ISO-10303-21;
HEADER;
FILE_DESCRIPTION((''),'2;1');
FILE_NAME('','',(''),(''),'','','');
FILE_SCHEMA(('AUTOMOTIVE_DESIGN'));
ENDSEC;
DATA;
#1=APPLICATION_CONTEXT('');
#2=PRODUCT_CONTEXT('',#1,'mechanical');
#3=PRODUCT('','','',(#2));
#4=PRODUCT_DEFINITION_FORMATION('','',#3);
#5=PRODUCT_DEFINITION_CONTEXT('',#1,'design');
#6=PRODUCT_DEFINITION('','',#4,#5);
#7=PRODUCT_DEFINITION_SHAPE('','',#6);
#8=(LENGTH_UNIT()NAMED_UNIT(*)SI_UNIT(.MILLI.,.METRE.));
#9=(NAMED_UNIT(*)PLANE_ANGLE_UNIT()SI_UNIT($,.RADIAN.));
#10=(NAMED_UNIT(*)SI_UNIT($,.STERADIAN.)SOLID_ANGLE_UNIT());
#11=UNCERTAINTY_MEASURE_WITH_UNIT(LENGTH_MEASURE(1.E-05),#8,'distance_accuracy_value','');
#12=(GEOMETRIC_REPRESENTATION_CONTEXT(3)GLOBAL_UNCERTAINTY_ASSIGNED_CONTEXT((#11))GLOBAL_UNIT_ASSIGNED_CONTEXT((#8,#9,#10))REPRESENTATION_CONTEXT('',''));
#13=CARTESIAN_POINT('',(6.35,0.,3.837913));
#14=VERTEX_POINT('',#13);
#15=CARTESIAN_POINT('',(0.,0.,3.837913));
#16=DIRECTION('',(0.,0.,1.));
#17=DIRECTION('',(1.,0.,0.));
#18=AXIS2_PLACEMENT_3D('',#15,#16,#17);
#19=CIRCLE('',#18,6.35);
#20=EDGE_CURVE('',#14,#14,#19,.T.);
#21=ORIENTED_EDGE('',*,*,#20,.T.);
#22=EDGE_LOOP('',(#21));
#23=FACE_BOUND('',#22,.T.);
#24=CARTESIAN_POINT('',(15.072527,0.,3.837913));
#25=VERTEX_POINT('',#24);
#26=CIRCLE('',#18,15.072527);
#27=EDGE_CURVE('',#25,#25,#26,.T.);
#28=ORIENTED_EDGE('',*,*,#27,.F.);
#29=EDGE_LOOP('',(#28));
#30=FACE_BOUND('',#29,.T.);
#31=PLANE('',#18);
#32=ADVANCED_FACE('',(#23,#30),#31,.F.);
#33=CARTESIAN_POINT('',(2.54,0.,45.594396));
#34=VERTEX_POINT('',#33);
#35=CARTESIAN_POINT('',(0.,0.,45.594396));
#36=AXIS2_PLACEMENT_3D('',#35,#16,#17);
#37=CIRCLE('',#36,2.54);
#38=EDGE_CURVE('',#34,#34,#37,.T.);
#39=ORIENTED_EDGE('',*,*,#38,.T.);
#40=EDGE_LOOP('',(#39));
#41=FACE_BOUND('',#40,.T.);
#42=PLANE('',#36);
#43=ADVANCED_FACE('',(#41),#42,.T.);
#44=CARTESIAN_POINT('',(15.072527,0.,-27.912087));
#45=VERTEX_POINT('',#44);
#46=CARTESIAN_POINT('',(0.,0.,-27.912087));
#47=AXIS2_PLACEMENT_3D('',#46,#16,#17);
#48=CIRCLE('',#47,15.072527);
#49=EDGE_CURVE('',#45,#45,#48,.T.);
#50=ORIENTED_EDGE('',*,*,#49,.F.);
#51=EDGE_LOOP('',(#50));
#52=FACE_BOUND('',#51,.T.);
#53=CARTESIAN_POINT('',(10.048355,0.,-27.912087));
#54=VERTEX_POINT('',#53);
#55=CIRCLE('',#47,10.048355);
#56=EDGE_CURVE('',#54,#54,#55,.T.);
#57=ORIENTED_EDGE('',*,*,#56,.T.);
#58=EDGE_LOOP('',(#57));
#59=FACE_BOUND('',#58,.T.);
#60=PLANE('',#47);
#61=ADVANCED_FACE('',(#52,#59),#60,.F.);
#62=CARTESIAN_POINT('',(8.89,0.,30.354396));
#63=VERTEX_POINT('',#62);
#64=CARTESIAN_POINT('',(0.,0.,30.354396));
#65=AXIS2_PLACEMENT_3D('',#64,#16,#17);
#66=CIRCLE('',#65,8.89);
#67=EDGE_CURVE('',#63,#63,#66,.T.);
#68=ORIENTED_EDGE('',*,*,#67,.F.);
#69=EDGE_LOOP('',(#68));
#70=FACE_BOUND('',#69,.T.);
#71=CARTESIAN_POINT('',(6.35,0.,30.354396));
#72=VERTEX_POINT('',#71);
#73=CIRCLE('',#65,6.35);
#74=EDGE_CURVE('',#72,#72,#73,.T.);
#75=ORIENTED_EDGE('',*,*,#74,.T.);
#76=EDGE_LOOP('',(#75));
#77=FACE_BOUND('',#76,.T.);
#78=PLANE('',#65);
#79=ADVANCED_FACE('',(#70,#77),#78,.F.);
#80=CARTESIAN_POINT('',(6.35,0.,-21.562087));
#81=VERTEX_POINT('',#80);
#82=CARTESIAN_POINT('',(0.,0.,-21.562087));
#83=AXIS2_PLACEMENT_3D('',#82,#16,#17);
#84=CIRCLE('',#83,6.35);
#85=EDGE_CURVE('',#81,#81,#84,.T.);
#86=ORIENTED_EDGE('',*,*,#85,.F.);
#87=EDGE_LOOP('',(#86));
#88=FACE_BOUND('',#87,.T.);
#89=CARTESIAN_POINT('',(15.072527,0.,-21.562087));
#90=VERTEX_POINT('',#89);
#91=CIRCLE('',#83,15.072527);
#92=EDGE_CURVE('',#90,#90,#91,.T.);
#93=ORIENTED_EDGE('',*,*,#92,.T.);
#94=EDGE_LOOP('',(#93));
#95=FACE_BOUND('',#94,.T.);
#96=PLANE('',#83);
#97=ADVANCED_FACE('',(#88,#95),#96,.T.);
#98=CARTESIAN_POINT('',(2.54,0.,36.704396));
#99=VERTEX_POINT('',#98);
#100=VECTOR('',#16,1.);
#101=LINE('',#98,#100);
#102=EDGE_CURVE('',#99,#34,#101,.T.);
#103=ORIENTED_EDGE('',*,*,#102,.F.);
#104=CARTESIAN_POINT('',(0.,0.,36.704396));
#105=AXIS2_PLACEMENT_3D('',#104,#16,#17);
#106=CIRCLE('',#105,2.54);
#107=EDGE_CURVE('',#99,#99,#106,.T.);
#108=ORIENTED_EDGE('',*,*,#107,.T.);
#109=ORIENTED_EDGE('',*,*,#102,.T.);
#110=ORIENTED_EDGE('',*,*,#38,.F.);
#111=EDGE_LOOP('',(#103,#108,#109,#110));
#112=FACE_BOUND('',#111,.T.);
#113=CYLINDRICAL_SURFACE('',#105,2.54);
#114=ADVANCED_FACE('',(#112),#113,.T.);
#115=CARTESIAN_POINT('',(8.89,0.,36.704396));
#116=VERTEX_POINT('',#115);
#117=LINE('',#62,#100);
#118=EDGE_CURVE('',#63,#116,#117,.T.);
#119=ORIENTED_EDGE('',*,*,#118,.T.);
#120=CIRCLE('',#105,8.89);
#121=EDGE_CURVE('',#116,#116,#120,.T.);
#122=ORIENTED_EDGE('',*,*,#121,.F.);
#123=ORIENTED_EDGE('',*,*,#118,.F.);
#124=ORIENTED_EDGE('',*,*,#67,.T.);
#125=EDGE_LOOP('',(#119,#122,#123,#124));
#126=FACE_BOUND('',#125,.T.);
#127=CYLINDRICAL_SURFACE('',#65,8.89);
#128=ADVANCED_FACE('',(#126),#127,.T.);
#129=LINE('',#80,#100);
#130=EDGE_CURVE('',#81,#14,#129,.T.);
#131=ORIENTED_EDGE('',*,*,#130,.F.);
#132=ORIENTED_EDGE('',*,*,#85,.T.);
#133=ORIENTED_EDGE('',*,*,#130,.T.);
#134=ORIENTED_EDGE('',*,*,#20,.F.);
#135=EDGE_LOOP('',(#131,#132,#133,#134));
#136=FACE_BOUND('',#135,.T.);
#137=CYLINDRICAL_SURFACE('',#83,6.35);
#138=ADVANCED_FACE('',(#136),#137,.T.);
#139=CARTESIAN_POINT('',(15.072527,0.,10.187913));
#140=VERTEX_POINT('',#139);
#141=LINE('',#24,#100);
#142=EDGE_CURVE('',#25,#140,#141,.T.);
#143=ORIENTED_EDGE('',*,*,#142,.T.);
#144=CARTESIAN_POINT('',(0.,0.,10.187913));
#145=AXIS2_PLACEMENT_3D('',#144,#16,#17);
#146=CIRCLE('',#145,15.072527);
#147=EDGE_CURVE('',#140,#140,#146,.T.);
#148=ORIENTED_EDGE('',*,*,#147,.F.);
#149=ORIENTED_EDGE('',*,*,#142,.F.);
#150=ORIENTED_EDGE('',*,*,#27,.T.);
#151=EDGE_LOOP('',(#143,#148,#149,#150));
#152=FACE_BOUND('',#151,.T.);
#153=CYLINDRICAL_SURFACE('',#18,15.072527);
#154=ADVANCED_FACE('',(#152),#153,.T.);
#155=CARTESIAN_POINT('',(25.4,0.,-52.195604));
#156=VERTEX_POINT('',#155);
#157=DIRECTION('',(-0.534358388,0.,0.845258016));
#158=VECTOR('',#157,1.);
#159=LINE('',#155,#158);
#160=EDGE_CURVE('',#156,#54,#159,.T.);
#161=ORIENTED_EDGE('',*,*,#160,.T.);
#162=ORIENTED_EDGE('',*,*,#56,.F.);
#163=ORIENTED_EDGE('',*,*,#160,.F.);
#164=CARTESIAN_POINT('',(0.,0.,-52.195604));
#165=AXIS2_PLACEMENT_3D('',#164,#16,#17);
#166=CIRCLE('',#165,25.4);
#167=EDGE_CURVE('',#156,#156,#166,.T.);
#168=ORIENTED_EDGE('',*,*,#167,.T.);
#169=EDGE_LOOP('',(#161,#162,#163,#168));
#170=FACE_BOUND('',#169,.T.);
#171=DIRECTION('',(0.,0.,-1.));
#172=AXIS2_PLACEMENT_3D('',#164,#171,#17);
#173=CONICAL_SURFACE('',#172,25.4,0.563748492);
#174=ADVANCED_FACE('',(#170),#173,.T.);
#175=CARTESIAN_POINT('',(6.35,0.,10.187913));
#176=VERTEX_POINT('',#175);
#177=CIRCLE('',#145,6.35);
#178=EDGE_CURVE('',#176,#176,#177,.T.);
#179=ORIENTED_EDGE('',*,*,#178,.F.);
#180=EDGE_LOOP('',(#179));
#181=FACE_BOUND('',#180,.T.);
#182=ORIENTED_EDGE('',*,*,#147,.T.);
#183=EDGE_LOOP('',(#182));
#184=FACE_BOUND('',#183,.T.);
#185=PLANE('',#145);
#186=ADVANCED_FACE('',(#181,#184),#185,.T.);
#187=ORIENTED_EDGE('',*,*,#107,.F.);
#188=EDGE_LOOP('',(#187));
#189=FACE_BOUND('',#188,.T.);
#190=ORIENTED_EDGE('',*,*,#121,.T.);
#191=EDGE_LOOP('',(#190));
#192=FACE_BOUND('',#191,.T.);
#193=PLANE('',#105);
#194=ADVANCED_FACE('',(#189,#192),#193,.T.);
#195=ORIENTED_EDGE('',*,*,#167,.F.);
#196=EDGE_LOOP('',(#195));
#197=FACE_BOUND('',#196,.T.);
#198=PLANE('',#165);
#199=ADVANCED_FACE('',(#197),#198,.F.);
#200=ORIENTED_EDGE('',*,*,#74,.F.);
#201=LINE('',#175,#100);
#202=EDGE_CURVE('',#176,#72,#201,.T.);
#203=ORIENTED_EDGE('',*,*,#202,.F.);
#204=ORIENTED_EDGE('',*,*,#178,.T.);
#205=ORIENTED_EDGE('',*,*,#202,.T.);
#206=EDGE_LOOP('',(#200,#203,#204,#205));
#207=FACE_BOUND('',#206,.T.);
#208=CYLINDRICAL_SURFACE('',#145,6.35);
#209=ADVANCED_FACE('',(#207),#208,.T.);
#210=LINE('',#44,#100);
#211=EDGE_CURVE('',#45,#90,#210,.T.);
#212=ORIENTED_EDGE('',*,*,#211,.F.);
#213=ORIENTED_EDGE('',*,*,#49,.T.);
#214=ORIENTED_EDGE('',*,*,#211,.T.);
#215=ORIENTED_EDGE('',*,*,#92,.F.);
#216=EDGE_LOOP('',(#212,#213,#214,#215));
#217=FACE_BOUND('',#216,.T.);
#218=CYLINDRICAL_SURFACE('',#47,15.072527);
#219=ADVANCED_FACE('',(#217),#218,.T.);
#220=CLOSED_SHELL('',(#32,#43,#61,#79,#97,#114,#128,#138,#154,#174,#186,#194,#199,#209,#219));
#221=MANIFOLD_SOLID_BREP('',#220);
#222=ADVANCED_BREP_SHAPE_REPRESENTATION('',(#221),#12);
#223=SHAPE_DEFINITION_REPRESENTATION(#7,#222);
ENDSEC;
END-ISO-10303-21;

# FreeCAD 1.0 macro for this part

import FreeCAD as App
import Part
import Sketcher
Q = App.Units.Quantity

doc = App.newDocument("Part")
body = doc.addObject("PartDesign::Body", "Body")

sketch1 = body.newObject("Sketcher::SketchObject", "Sketch")
sketch1.AttachmentSupport = (doc.getObject("XZ_Plane"), [""])
sketch1.MapMode = "FlatFace"
sketch1.addGeometry(Part.LineSegment(App.Vector(0, -52.195604, 0), App.Vector(25.4, -52.195604, 0)), False)
sketch1.addGeometry(Part.LineSegment(App.Vector(25.4, -52.195604, 0), App.Vector(10.048355, -27.912087, 0)), False)
sketch1.addGeometry(Part.LineSegment(App.Vector(10.048355, -27.912087, 0), App.Vector(15.072527, -27.912087, 0)), False)
sketch1.addGeometry(Part.LineSegment(App.Vector(15.072527, -27.912087, 0), App.Vector(15.072527, -21.562087, 0)), False)
sketch1.addGeometry(Part.LineSegment(App.Vector(15.072527, -21.562087, 0), App.Vector(6.35, -21.562087, 0)), False)
sketch1.addGeometry(Part.LineSegment(App.Vector(6.35, -21.562087, 0), App.Vector(6.35, 3.837913, 0)), False)
sketch1.addGeometry(Part.LineSegment(App.Vector(6.35, 3.837913, 0), App.Vector(15.072527, 3.837913, 0)), False)
sketch1.addGeometry(Part.LineSegment(App.Vector(15.072527, 3.837913, 0), App.Vector(15.072527, 10.187913, 0)), False)
sketch1.addGeometry(Part.LineSegment(App.Vector(15.072527, 10.187913, 0), App.Vector(6.35, 10.187913, 0)), False)
sketch1.addGeometry(Part.LineSegment(App.Vector(6.35, 10.187913, 0), App.Vector(6.35, 30.354396, 0)), False)
sketch1.addGeometry(Part.LineSegment(App.Vector(6.35, 30.354396, 0), App.Vector(8.89, 30.354396, 0)), False)
sketch1.addGeometry(Part.LineSegment(App.Vector(8.89, 30.354396, 0), App.Vector(8.89, 36.704396, 0)), False)
sketch1.addGeometry(Part.LineSegment(App.Vector(8.89, 36.704396, 0), App.Vector(2.54, 36.704396, 0)), False)
sketch1.addGeometry(Part.LineSegment(App.Vector(2.54, 36.704396, 0), App.Vector(2.54, 45.594396, 0)), False)
sketch1.addGeometry(Part.LineSegment(App.Vector(2.54, 45.594396, 0), App.Vector(0, 45.594396, 0)), False)
sketch1.addGeometry(Part.LineSegment(App.Vector(0, 45.594396, 0), App.Vector(0, -52.195604, 0)), False)
sketch1.addConstraint(Sketcher.Constraint("Coincident", 0, 2, 1, 1))
sketch1.addConstraint(Sketcher.Constraint("Coincident", 1, 2, 2, 1))
sketch1.addConstraint(Sketcher.Constraint("Coincident", 2, 2, 3, 1))
sketch1.addConstraint(Sketcher.Constraint("Coincident", 3, 2, 4, 1))
sketch1.addConstraint(Sketcher.Constraint("Coincident", 4, 2, 5, 1))
sketch1.addConstraint(Sketcher.Constraint("Coincident", 5, 2, 6, 1))
sketch1.addConstraint(Sketcher.Constraint("Coincident", 6, 2, 7, 1))
sketch1.addConstraint(Sketcher.Constraint("Coincident", 7, 2, 8, 1))
sketch1.addConstraint(Sketcher.Constraint("Coincident", 8, 2, 9, 1))
sketch1.addConstraint(Sketcher.Constraint("Coincident", 9, 2, 10, 1))
sketch1.addConstraint(Sketcher.Constraint("Coincident", 10, 2, 11, 1))
sketch1.addConstraint(Sketcher.Constraint("Coincident", 11, 2, 12, 1))
sketch1.addConstraint(Sketcher.Constraint("Coincident", 12, 2, 13, 1))
sketch1.addConstraint(Sketcher.Constraint("Coincident", 13, 2, 14, 1))
sketch1.addConstraint(Sketcher.Constraint("Coincident", 14, 2, 15, 1))
sketch1.addConstraint(Sketcher.Constraint("Coincident", 15, 2, 0, 1))
sketch1.addConstraint(Sketcher.Constraint("Horizontal", 0))
sketch1.addConstraint(Sketcher.Constraint("Horizontal", 2))
sketch1.addConstraint(Sketcher.Constraint("Vertical", 3))
sketch1.addConstraint(Sketcher.Constraint("Horizontal", 4))
sketch1.addConstraint(Sketcher.Constraint("Vertical", 5))
sketch1.addConstraint(Sketcher.Constraint("Horizontal", 6))
sketch1.addConstraint(Sketcher.Constraint("Vertical", 7))
sketch1.addConstraint(Sketcher.Constraint("Horizontal", 8))
sketch1.addConstraint(Sketcher.Constraint("Vertical", 9))
sketch1.addConstraint(Sketcher.Constraint("Horizontal", 10))
sketch1.addConstraint(Sketcher.Constraint("Vertical", 11))
sketch1.addConstraint(Sketcher.Constraint("Horizontal", 12))
sketch1.addConstraint(Sketcher.Constraint("Vertical", 13))
sketch1.addConstraint(Sketcher.Constraint("Horizontal", 14))
sketch1.addConstraint(Sketcher.Constraint("Vertical", 15))
sketch1.addConstraint(Sketcher.Constraint("PointOnObject", 14, 2, -2))
sketch1.addConstraint(Sketcher.Constraint("Vertical", 3, 2, 6, 2))
sketch1.addConstraint(Sketcher.Constraint("Vertical", 5, 2, 8, 2))
sketch1.addConstraint(Sketcher.Constraint("Equal", 10, 14))
sketch1.addConstraint(Sketcher.Constraint("Equal", 12, 3))
sketch1.addConstraint(Sketcher.Constraint("Equal", 0, 5))
sketch1.addConstraint(Sketcher.Constraint("Equal", 3, 7))
sketch1.addConstraint(Sketcher.Constraint("Equal", 7, 11))
sketch1.addConstraint(Sketcher.Constraint("DistanceX", 0, 1, 0, 2, Q("1 in")))
sketch1.addConstraint(Sketcher.Constraint("DistanceX", 10, 1, 10, 2, Q("0.1 in")))
sketch1.addConstraint(Sketcher.Constraint("DistanceX", 12, 2, 12, 1, Q("0.25 in")))
sketch1.addConstraint(Sketcher.Constraint("DistanceY", 13, 1, 13, 2, Q("0.35 in")))
sketch1.addConstraint(Sketcher.Constraint("DistanceY", 15, 2, 15, 1, Q("3.85 in")))
sketch1.addConstraint(Sketcher.Constraint("DistanceX", 2, 1, 2, 2, Q("5.024172 mm")))
sketch1.addConstraint(Sketcher.Constraint("DistanceX", 4, 2, 4, 1, Q("8.722527 mm")))
sketch1.addConstraint(Sketcher.Constraint("DistanceY", 9, 1, 9, 2, Q("20.166483 mm")))
sketch1.addConstraint(Sketcher.Constraint("DistanceY", 0, 2, -1, 1, Q("52.195604 mm")))
revolution = body.newObject("PartDesign::Revolution", "Revolution")
revolution.Profile = sketch1
revolution.ReferenceAxis = (sketch1, ["V_Axis"])
revolution.Angle = 360

doc.recompute()
